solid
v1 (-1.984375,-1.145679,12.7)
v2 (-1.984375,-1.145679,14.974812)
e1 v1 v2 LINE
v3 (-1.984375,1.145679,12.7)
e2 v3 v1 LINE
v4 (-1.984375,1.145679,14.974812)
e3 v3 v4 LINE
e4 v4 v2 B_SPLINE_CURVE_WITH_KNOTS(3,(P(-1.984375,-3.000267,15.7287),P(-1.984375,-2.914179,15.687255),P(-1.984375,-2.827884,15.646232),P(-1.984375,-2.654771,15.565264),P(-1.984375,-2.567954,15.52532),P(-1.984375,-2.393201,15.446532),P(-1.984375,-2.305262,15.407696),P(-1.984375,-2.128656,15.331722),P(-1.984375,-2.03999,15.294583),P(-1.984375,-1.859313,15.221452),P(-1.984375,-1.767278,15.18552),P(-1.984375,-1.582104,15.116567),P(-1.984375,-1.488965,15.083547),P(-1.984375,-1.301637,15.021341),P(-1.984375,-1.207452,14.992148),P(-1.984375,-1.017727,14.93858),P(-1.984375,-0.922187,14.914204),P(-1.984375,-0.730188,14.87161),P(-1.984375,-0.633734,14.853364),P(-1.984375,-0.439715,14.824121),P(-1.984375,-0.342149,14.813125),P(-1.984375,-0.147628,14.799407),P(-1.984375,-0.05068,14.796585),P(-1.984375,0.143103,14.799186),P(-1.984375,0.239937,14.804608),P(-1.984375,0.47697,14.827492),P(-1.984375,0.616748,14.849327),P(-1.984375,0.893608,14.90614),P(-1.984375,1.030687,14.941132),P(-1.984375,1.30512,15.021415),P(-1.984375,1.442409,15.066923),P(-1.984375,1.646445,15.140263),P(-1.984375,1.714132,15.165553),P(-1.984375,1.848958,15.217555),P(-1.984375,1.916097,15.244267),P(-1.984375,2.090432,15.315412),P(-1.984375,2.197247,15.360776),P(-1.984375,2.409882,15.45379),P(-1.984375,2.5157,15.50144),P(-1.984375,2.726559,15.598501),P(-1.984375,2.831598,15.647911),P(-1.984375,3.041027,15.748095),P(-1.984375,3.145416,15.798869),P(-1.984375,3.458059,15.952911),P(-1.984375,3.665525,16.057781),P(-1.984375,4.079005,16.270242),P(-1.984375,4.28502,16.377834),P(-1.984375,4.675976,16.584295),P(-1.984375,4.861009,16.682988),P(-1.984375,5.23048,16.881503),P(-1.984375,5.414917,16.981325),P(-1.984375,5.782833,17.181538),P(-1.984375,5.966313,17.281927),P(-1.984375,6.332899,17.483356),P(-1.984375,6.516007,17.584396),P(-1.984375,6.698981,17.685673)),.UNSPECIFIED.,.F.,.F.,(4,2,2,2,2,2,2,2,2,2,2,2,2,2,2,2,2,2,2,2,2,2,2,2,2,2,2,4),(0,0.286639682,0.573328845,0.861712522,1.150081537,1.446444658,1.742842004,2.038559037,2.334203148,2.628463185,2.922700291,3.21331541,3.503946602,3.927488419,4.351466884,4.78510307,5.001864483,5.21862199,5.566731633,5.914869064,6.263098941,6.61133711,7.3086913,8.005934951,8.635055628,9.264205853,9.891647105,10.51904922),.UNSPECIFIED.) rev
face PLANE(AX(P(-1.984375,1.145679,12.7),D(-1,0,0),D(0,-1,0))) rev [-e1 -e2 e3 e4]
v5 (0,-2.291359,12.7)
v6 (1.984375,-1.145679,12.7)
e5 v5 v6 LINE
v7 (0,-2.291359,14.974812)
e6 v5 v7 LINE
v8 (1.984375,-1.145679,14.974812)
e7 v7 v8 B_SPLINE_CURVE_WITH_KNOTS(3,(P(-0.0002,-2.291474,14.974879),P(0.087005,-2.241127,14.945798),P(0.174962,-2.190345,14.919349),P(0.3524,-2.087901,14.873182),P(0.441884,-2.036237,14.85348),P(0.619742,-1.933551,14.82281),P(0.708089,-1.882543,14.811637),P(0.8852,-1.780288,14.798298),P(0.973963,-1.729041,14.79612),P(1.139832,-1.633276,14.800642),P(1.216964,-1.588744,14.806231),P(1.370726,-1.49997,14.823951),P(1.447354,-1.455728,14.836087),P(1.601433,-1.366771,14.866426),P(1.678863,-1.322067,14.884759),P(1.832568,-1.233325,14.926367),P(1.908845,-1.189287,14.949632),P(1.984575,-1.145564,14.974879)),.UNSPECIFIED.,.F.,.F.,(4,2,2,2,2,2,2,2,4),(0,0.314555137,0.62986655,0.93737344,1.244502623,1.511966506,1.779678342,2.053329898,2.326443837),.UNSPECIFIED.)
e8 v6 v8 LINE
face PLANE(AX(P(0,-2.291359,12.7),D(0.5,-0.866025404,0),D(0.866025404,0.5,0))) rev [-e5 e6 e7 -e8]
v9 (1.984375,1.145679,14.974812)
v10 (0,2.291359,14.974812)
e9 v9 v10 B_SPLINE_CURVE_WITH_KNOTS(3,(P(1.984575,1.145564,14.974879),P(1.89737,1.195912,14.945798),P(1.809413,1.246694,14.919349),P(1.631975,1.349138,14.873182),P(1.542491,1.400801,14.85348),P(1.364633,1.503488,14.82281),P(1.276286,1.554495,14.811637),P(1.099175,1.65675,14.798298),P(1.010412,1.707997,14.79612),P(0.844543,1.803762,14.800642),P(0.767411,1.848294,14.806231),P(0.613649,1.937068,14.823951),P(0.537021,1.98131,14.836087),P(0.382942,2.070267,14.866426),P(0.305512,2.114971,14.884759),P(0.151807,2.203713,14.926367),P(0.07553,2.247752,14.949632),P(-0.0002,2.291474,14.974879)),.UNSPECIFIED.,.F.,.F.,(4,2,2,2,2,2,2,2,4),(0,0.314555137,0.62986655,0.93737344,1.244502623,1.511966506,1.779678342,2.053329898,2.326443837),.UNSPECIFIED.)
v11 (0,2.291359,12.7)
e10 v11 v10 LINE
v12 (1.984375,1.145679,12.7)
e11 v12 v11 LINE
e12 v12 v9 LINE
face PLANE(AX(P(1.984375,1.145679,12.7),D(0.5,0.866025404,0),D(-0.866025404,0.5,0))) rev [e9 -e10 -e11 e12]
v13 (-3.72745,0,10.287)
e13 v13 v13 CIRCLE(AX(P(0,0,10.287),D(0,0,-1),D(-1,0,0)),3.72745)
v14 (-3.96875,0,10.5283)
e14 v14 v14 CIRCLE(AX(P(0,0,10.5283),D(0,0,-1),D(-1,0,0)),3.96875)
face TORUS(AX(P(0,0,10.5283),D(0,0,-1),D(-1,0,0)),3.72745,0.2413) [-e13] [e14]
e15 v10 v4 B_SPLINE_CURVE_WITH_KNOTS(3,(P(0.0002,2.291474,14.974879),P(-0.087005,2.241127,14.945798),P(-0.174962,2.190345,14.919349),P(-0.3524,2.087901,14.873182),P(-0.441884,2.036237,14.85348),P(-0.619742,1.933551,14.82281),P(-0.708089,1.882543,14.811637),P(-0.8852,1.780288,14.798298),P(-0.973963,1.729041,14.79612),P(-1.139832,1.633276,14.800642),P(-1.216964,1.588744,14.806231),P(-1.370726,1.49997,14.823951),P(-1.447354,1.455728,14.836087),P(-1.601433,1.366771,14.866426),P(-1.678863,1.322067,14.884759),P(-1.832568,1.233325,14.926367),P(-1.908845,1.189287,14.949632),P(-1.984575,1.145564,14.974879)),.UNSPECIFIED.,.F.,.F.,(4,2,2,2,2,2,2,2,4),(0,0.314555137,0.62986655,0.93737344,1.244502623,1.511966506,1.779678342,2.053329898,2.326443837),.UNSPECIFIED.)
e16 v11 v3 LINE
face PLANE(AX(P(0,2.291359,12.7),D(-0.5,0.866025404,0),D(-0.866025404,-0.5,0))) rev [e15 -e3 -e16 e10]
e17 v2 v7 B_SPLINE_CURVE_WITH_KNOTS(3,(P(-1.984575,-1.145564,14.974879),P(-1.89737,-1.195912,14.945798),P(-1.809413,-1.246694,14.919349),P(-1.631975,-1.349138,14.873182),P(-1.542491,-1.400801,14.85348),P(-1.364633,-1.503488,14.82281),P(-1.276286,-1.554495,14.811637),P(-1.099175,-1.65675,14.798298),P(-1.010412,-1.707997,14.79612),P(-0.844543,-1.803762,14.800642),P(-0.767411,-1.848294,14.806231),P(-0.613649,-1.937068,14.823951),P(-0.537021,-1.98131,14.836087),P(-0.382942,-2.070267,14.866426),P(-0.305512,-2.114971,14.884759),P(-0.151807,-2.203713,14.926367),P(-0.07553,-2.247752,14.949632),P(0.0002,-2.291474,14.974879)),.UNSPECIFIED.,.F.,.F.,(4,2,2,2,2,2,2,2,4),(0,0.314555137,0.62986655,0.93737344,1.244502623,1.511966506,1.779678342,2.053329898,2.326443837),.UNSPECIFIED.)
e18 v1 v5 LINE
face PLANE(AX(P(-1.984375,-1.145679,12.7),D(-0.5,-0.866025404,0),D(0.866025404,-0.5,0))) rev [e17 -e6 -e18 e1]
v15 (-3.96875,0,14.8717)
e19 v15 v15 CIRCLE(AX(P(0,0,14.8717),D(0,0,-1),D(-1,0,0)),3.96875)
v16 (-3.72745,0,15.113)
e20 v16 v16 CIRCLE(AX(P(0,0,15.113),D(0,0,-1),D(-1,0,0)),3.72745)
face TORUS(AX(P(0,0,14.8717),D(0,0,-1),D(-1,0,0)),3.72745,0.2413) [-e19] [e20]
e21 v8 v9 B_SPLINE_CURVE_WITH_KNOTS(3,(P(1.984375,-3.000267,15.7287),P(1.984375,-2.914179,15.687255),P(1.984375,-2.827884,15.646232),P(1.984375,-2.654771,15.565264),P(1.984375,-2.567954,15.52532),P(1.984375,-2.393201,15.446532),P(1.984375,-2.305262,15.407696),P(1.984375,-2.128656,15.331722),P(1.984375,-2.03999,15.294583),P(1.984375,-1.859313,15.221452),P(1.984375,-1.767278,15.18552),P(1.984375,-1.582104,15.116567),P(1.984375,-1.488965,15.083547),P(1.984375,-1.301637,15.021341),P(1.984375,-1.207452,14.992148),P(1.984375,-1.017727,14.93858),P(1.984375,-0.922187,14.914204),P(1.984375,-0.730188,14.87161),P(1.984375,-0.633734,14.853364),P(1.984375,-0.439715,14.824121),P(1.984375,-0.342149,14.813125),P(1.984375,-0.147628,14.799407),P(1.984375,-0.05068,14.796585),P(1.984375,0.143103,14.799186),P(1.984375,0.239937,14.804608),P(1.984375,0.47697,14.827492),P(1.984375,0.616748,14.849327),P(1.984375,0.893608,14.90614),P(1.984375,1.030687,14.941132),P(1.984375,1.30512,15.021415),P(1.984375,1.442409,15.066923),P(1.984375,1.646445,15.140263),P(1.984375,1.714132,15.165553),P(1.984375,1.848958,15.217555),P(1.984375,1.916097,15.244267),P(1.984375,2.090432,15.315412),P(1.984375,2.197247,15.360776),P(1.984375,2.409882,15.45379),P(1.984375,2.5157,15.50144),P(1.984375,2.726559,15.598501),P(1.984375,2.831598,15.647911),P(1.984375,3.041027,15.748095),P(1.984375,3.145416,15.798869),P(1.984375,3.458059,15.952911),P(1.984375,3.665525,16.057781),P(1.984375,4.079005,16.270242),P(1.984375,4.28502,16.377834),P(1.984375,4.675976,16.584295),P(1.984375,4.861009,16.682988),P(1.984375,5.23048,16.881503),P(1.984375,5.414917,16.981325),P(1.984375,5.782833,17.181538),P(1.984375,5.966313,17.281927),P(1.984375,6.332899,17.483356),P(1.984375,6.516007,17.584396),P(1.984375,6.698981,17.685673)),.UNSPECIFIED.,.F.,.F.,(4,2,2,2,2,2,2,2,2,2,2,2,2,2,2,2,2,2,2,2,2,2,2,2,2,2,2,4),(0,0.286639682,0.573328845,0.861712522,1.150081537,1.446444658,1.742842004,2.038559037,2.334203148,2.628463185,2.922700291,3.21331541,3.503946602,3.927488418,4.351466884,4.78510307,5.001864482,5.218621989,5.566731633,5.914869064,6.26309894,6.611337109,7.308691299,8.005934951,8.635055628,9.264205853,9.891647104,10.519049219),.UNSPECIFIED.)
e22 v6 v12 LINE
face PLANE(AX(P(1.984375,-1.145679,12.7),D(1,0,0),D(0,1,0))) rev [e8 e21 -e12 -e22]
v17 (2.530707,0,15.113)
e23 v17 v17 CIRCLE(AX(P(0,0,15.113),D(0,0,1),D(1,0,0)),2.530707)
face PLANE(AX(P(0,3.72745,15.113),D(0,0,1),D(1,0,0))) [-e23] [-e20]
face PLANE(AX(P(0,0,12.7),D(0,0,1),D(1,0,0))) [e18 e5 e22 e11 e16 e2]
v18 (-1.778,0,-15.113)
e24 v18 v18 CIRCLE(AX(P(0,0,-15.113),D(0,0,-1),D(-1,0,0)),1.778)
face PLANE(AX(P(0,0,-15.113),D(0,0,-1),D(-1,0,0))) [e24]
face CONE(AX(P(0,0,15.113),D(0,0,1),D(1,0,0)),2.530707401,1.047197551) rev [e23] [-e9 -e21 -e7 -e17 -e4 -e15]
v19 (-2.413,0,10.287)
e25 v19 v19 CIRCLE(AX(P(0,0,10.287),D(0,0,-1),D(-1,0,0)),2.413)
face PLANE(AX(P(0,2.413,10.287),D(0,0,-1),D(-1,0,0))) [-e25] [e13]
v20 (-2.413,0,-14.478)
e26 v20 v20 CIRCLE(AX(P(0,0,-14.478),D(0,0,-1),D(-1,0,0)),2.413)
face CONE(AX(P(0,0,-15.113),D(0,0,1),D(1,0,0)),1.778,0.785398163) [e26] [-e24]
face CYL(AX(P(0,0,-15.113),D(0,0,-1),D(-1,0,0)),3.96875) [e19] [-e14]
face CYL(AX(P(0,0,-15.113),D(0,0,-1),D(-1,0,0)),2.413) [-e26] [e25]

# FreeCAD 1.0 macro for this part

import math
import FreeCAD as App
import Part
import Sketcher
Q = App.Units.Quantity


def add_polygon(sketch, points):
    """Adds a closed chain of lines whose ends are joined by coincident constraints."""
    first, n = sketch.GeometryCount, len(points)
    for a, b in zip(points, points[1:] + points[:1]):
        sketch.addGeometry(Part.LineSegment(App.Vector(*a, 0), App.Vector(*b, 0)), False)
    for i in range(n):
        sketch.addConstraint(Sketcher.Constraint("Coincident", first + i, 2, first + (i + 1) % n, 1))

doc = App.newDocument("Part")
params = doc.addObject("Spreadsheet::Sheet", "Params")
for row, (alias, value) in enumerate([
    ("sketch1_width", "0.07 in"),
    ("sketch1_height", "1.19 in"),
    ("sketch1_height2", "0.975 in"),
    ("revolution_angle", "360 deg"),
    ("pocket1_length", "0.095 in"),
    ("groove_angle", "360 deg"),
], start=1):
    params.set(f"A{row}", alias)
    params.set(f"B{row}", "=" + value)
    params.setAlias(f"B{row}", alias)

body = doc.addObject("PartDesign::Body", "Body")

# Sketch on YZ plane
sketch1 = body.newObject("Sketcher::SketchObject", "Sketch")
sketch1.AttachmentSupport = (doc.getObject("YZ_Plane"), [""])
sketch1.MapMode = "FlatFace"
sketch1.addGeometry(Part.LineSegment(App.Vector(0, -15.11, 0), App.Vector(1.78, -15.11, 0)), False)
sketch1.addGeometry(Part.LineSegment(App.Vector(1.78, -15.11, 0), App.Vector(2.41, -14.48, 0)), False)
sketch1.addGeometry(Part.LineSegment(App.Vector(2.41, -14.48, 0), App.Vector(2.41, 10.29, 0)), False)
sketch1.addGeometry(Part.LineSegment(App.Vector(2.41, 10.29, 0), App.Vector(3.73, 10.29, 0)), False)
sketch1.addGeometry(Part.ArcOfCircle(Part.Circle(App.Vector(3.73, 10.53, 0), App.Vector(0, 0, 1), 0.24), math.radians(-90), math.radians(0)), False)
sketch1.addGeometry(Part.LineSegment(App.Vector(3.97, 10.53, 0), App.Vector(3.97, 14.87, 0)), False)
sketch1.addGeometry(Part.ArcOfCircle(Part.Circle(App.Vector(3.73, 14.87, 0), App.Vector(0, 0, 1), 0.24), math.radians(0), math.radians(90)), False)
sketch1.addGeometry(Part.LineSegment(App.Vector(3.73, 15.11, 0), App.Vector(0, 15.11, 0)), False)
sketch1.addGeometry(Part.LineSegment(App.Vector(0, 15.11, 0), App.Vector(0, -15.11, 0)), False)
sketch1.addConstraint(Sketcher.Constraint("Coincident", 0, 2, 1, 1))
sketch1.addConstraint(Sketcher.Constraint("Coincident", 1, 2, 2, 1))
sketch1.addConstraint(Sketcher.Constraint("Coincident", 2, 2, 3, 1))
sketch1.addConstraint(Sketcher.Constraint("Tangent", 3, 2, 4, 1))
sketch1.addConstraint(Sketcher.Constraint("Tangent", 4, 2, 5, 1))
sketch1.addConstraint(Sketcher.Constraint("Tangent", 5, 2, 6, 1))
sketch1.addConstraint(Sketcher.Constraint("Tangent", 6, 2, 7, 1))
sketch1.addConstraint(Sketcher.Constraint("Coincident", 7, 2, 8, 1))
sketch1.addConstraint(Sketcher.Constraint("Coincident", 8, 2, 0, 1))
sketch1.addConstraint(Sketcher.Constraint("Horizontal", 0))
sketch1.addConstraint(Sketcher.Constraint("Vertical", 2))
sketch1.addConstraint(Sketcher.Constraint("Horizontal", 3))
sketch1.addConstraint(Sketcher.Constraint("Vertical", 5))
sketch1.addConstraint(Sketcher.Constraint("Horizontal", 7))
sketch1.addConstraint(Sketcher.Constraint("Vertical", 8))
sketch1.addConstraint(Sketcher.Constraint("Equal", 4, 6))
sketch1.addConstraint(Sketcher.Constraint("Symmetric", 7, 2, 8, 2, -1, 1))
sketch1.addConstraint(Sketcher.Constraint("Angle", 1, Q("45 deg")))
sketch1.addConstraint(Sketcher.Constraint("DistanceY", 0, 2, 2, 2, Q("1 in")))
sketch1.addConstraint(Sketcher.Constraint("DistanceX", 0, 1, 0, 2, Q("0.07 in")))
sketch1.addConstraint(Sketcher.Constraint("DistanceY", 8, 2, 8, 1, Q("1.19 in")))
sketch1.addConstraint(Sketcher.Constraint("Radius", 4, Q("0.0095 in")))
sketch1.addConstraint(Sketcher.Constraint("DistanceY", 2, 1, 2, 2, Q("0.975 in")))
sketch1.addConstraint(Sketcher.Constraint("DistanceX", -1, 1, 4, 2, Q("0.15625 in")))
sketch1.setExpression("Constraints[19]", "Params.sketch1_width")
sketch1.setExpression("Constraints[20]", "Params.sketch1_height")
sketch1.setExpression("Constraints[22]", "Params.sketch1_height2")
revolution = body.newObject("PartDesign::Revolution", "Revolution")
revolution.Profile = sketch1
revolution.ReferenceAxis = (sketch1, ["V_Axis"])
revolution.setExpression("Angle", "Params.revolution_angle")

# Sketch on XY plane
sketch2 = body.newObject("Sketcher::SketchObject", "Sketch001")
sketch2.AttachmentSupport = (doc.getObject("XY_Plane"), [""])
sketch2.MapMode = "FlatFace"
sketch2.AttachmentOffset = App.Placement(App.Vector(0, 0, 0.595 * 25.4), App.Rotation())
add_polygon(sketch2, [(-2, 1.1), (-2, -1.1), (0, -2.3), (2, -1.1), (2, 1.1), (0, 2.3)])  # lines 0-5
sketch2.addConstraint(Sketcher.Constraint("Vertical", 0))
sketch2.addConstraint(Sketcher.Constraint("Vertical", 3))
sketch2.addConstraint(Sketcher.Constraint("Symmetric", 0, 2, 3, 2, -1, 1))
sketch2.addConstraint(Sketcher.Constraint("Symmetric", 1, 2, 4, 2, -1, 1))
sketch2.addConstraint(Sketcher.Constraint("PointOnObject", 1, 2, -2))
sketch2.addConstraint(Sketcher.Constraint("Parallel", 2, 5))
sketch2.addConstraint(Sketcher.Constraint("Horizontal", 0, 2, 2, 2))
sketch2.addConstraint(Sketcher.Constraint("Angle", 1, Q("-30 deg")))
sketch2.addConstraint(Sketcher.Constraint("DistanceX", 0, 2, -1, 1, Q("0.078125 in")))
sketch2.addConstraint(Sketcher.Constraint("DistanceY", 0, 2, 0, 1, Q("2.291359 mm")))
pocket1 = body.newObject("PartDesign::Pocket", "Pocket")
pocket1.Profile = sketch2
pocket1.setExpression("Length", "Params.pocket1_length")

# Sketch on YZ plane
sketch3 = body.newObject("Sketcher::SketchObject", "Sketch002")
sketch3.AttachmentSupport = (doc.getObject("YZ_Plane"), [""])
sketch3.MapMode = "FlatFace"
add_polygon(sketch3, [(0, 15.1), (-2.5, 15.1), (0, 13.7)])  # lines 0-2
sketch3.addConstraint(Sketcher.Constraint("Horizontal", 0))
sketch3.addConstraint(Sketcher.Constraint("Vertical", 2))
sketch3.addConstraint(Sketcher.Constraint("PointOnObject", 1, 2, -2))
sketch3.addConstraint(Sketcher.Constraint("Angle", 1, Q("-30 deg")))
sketch3.addConstraint(Sketcher.Constraint("DistanceY", -1, 1, 0, 2, Q("0.595 in")))
sketch3.addConstraint(Sketcher.Constraint("Distance", 1, Q("2.922209 mm")))
groove = body.newObject("PartDesign::Groove", "Groove")
groove.Profile = sketch3
groove.ReferenceAxis = (sketch3, ["V_Axis"])
groove.setExpression("Angle", "Params.groove_angle")

doc.recompute()
